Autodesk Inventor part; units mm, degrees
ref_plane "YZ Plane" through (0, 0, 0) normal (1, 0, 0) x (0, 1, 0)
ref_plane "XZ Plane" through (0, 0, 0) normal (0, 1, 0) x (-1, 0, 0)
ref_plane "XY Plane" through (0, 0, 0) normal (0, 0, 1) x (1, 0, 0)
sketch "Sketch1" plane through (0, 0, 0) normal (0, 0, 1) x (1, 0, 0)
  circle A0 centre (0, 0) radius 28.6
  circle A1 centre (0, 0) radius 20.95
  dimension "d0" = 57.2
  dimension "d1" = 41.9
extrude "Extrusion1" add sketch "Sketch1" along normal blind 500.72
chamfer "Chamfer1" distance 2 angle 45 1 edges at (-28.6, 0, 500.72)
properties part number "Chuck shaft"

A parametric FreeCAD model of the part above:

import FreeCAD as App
import Part
import Sketcher
from FreeCAD import Vector


def edges_at(feature, points):
    """Names of the edges that pass closest to the given points."""
    edges = feature.Shape.Edges
    near = lambda p: min(range(len(edges)), key=lambda i: edges[i].distToShape(Part.Vertex(*p))[0])
    return sorted({f"Edge{near(p) + 1}" for p in points})

doc = App.newDocument("Part")
body = doc.addObject("PartDesign::Body", "Body")

# Sketch on XY plane
sketch1 = body.newObject("Sketcher::SketchObject", "Sketch")
sketch1.AttachmentSupport = (doc.getObject("XY_Plane"), [""])
sketch1.MapMode = "FlatFace"
sketch1.addGeometry([
    Part.Circle(Vector(0, 0, 0), Vector(0, 0, 1), 28.6),
    Part.Circle(Vector(0, 0, 0), Vector(0, 0, 1), 20.95),
], False)
sketch1.addConstraint([
    Sketcher.Constraint("Coincident", 0, 3, -1, 1),
    Sketcher.Constraint("Coincident", 1, 3, -1, 1),
    Sketcher.Constraint("Diameter", 0, 57.2),
    Sketcher.Constraint("Diameter", 1, 41.9),
])
pad1 = body.newObject("PartDesign::Pad", "Pad")
pad1.Profile = sketch1
pad1.Length = 500.72
doc.recompute()

chamfer = body.newObject("PartDesign::Chamfer", "Chamfer")
chamfer.Base = (pad1, edges_at(pad1, [(-28.6, 0, 500.72)]))
chamfer.Size = 2

doc.recompute()
